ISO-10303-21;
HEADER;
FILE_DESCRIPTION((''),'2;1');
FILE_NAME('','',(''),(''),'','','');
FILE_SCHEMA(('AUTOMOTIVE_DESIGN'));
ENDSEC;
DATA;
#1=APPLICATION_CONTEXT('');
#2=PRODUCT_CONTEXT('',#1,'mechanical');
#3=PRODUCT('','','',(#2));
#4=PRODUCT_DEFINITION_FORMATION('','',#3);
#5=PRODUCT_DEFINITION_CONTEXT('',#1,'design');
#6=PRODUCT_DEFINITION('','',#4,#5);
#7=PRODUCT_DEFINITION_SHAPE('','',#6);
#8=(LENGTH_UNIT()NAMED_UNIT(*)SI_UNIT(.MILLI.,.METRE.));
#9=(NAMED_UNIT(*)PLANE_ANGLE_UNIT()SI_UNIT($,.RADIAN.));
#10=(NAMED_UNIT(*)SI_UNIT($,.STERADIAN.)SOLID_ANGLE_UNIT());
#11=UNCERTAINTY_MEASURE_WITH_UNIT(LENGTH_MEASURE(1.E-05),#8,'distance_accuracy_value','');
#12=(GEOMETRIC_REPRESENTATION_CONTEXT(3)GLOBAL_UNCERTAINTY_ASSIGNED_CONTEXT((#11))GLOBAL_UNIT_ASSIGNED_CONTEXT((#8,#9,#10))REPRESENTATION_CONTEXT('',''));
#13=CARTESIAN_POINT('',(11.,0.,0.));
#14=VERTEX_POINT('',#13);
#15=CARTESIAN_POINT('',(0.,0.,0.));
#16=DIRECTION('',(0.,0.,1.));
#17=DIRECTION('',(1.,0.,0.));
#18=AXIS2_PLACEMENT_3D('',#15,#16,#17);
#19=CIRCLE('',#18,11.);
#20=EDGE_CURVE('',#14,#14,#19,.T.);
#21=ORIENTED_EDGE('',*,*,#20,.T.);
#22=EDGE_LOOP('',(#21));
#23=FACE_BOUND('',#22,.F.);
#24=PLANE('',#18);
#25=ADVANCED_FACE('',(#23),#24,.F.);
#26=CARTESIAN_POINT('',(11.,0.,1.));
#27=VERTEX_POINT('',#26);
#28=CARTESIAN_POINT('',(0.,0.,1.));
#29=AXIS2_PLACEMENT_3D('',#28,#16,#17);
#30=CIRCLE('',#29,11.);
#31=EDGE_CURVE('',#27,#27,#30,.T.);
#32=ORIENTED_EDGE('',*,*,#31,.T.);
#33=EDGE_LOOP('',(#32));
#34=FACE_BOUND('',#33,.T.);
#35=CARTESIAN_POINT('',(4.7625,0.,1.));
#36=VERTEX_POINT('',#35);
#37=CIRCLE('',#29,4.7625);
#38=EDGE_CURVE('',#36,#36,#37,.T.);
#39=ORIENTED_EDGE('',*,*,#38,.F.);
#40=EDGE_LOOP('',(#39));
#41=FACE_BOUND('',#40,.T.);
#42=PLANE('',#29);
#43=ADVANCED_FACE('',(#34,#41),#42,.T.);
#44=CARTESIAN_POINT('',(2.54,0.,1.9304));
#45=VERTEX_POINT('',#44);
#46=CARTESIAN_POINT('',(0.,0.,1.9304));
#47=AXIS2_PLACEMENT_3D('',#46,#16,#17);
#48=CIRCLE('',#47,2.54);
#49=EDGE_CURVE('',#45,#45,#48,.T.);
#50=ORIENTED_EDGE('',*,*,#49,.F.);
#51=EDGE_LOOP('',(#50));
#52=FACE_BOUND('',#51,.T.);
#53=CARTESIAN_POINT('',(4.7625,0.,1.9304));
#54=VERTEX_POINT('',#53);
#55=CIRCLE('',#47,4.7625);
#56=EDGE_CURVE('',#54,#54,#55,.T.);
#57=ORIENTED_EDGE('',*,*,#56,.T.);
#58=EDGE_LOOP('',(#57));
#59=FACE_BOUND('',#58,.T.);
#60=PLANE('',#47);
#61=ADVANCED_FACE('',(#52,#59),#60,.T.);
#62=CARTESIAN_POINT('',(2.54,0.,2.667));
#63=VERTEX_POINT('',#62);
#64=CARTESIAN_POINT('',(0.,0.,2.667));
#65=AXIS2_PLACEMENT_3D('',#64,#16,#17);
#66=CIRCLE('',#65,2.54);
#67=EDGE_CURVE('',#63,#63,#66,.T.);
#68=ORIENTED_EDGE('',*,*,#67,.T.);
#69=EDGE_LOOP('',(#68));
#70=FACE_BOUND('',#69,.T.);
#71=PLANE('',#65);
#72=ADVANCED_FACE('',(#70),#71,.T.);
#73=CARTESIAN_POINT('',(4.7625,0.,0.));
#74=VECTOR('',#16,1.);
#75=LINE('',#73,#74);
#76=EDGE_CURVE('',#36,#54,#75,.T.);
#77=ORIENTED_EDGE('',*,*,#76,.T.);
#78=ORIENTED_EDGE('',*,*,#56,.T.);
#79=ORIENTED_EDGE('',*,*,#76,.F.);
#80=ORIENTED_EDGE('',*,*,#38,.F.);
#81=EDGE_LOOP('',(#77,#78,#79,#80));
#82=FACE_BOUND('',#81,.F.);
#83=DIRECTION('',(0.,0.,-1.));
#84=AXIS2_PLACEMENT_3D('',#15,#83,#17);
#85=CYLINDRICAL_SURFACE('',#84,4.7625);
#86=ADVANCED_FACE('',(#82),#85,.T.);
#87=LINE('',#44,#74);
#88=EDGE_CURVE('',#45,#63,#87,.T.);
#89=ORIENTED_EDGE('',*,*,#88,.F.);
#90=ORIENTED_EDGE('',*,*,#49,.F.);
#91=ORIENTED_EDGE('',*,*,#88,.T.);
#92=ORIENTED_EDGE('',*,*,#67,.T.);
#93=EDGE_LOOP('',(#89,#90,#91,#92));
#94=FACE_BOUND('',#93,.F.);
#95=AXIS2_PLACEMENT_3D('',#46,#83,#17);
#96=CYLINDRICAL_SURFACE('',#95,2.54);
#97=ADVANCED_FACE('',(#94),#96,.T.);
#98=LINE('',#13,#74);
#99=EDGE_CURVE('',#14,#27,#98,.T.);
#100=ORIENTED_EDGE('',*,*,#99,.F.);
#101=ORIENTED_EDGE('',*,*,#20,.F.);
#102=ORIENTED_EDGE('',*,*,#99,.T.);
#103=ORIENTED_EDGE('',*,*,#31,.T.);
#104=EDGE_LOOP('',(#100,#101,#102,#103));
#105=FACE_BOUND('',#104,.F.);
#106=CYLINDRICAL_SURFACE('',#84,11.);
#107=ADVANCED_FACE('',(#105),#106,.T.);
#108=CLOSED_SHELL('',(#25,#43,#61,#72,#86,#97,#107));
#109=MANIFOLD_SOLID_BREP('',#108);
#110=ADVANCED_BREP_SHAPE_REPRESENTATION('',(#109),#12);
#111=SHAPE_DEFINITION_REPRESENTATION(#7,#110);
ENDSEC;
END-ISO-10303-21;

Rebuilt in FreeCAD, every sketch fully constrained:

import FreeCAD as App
import Part
import Sketcher
from FreeCAD import Vector
Q = App.Units.Quantity

doc = App.newDocument("Part")
body = doc.addObject("PartDesign::Body", "Body")

# Sketch on XY plane
sketch1 = doc.addObject("Sketcher::SketchObject", "Sketch")
body.addObject(sketch1)
sketch1.AttachmentSupport = (doc.XY_Plane, [""])
sketch1.MapMode = "FlatFace"
sketch1.addGeometry(Part.Circle(Vector(0, 0, 0), Vector(0, 0, 1), 4.8), False)
sketch1.addConstraint([
    Sketcher.Constraint("Coincident", 0, 3, -1, 1),
    Sketcher.Constraint("Diameter", 0, Q("0.375 in")),
])
pad1 = doc.addObject("PartDesign::Pad", "Pad")
body.addObject(pad1)
pad1.Profile = sketch1
pad1.Length = Q("0.076 in")

# Sketch on XY plane
sketch2 = doc.addObject("Sketcher::SketchObject", "Sketch001")
body.addObject(sketch2)
sketch2.AttachmentSupport = (doc.XY_Plane, [""])
sketch2.MapMode = "FlatFace"
sketch2.addGeometry([
    Part.Circle(Vector(0, 0, 0), Vector(0, 0, 1), 11),
    Part.Circle(Vector(0, 0, 0), Vector(0, 0, 1), 4.8),
], False)
sketch2.addConstraint([
    Sketcher.Constraint("Coincident", 0, 3, -1, 1),
    Sketcher.Constraint("Coincident", 1, 3, -1, 1),
    Sketcher.Constraint("Diameter", 1, Q("0.375 in")),
    Sketcher.Constraint("Diameter", 0, 22.0),
])
pad2 = doc.addObject("PartDesign::Pad", "Pad001")
body.addObject(pad2)
pad2.Profile = sketch2
pad2.Length = 1

# Sketch on XY plane
sketch3 = doc.addObject("Sketcher::SketchObject", "Sketch002")
body.addObject(sketch3)
sketch3.AttachmentSupport = (doc.XY_Plane, [""])
sketch3.MapMode = "FlatFace"
sketch3.AttachmentOffset = App.Placement(Vector(0, 0, 0.076 * 25.4), App.Rotation())
sketch3.addGeometry(Part.Circle(Vector(0, 0, 0), Vector(0, 0, 1), 2.5), False)
sketch3.addConstraint([
    Sketcher.Constraint("Coincident", 0, 3, -1, 1),
    Sketcher.Constraint("Diameter", 0, Q("0.2 in")),
])
pad3 = doc.addObject("PartDesign::Pad", "Pad002")
body.addObject(pad3)
pad3.Profile = sketch3
pad3.Length = Q("0.029 in")

doc.recompute()
